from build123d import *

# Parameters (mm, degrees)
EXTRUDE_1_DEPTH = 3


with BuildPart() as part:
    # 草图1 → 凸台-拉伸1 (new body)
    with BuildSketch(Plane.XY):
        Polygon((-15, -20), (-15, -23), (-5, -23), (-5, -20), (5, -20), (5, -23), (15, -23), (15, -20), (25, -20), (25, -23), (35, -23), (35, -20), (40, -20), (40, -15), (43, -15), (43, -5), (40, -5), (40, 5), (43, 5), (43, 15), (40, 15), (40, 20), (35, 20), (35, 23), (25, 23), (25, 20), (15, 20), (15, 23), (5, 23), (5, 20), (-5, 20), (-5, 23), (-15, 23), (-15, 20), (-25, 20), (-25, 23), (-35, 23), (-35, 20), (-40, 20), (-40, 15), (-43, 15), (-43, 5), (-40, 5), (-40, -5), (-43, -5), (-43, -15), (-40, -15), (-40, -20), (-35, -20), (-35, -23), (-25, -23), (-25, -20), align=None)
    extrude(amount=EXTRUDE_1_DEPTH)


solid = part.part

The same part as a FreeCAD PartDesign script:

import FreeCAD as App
import Part
import Sketcher

V = App.Vector
Q = App.Units.Quantity

doc = App.newDocument("Part")
body = doc.addObject("PartDesign::Body", "Body")

sketch1 = body.newObject("Sketcher::SketchObject", "Sketch")
sketch1.AttachmentSupport = (doc.getObject("XY_Plane"), [""])
sketch1.MapMode = "FlatFace"
sketch1.addGeometry(Part.LineSegment(V(-15, -20, 0), V(-15, -23, 0)), False)
sketch1.addGeometry(Part.LineSegment(V(-15, -23, 0), V(-5, -23, 0)), False)
sketch1.addGeometry(Part.LineSegment(V(-5, -23, 0), V(-5, -20, 0)), False)
sketch1.addGeometry(Part.LineSegment(V(-5, -20, 0), V(5, -20, 0)), False)
sketch1.addGeometry(Part.LineSegment(V(5, -20, 0), V(5, -23, 0)), False)
sketch1.addGeometry(Part.LineSegment(V(5, -23, 0), V(15, -23, 0)), False)
sketch1.addGeometry(Part.LineSegment(V(15, -23, 0), V(15, -20, 0)), False)
sketch1.addGeometry(Part.LineSegment(V(15, -20, 0), V(25, -20, 0)), False)
sketch1.addGeometry(Part.LineSegment(V(25, -20, 0), V(25, -23, 0)), False)
sketch1.addGeometry(Part.LineSegment(V(25, -23, 0), V(35, -23, 0)), False)
sketch1.addGeometry(Part.LineSegment(V(35, -23, 0), V(35, -20, 0)), False)
sketch1.addGeometry(Part.LineSegment(V(35, -20, 0), V(40, -20, 0)), False)
sketch1.addGeometry(Part.LineSegment(V(40, -20, 0), V(40, -15, 0)), False)
sketch1.addGeometry(Part.LineSegment(V(40, -15, 0), V(43, -15, 0)), False)
sketch1.addGeometry(Part.LineSegment(V(43, -15, 0), V(43, -5, 0)), False)
sketch1.addGeometry(Part.LineSegment(V(43, -5, 0), V(40, -5, 0)), False)
sketch1.addGeometry(Part.LineSegment(V(40, -5, 0), V(40, 5, 0)), False)
sketch1.addGeometry(Part.LineSegment(V(40, 5, 0), V(43, 5, 0)), False)
sketch1.addGeometry(Part.LineSegment(V(43, 5, 0), V(43, 15, 0)), False)
sketch1.addGeometry(Part.LineSegment(V(43, 15, 0), V(40, 15, 0)), False)
sketch1.addGeometry(Part.LineSegment(V(40, 15, 0), V(40, 20, 0)), False)
sketch1.addGeometry(Part.LineSegment(V(40, 20, 0), V(35, 20, 0)), False)
sketch1.addGeometry(Part.LineSegment(V(35, 20, 0), V(35, 23, 0)), False)
sketch1.addGeometry(Part.LineSegment(V(35, 23, 0), V(25, 23, 0)), False)
sketch1.addGeometry(Part.LineSegment(V(25, 23, 0), V(25, 20, 0)), False)
sketch1.addGeometry(Part.LineSegment(V(25, 20, 0), V(15, 20, 0)), False)
sketch1.addGeometry(Part.LineSegment(V(15, 20, 0), V(15, 23, 0)), False)
sketch1.addGeometry(Part.LineSegment(V(15, 23, 0), V(5, 23, 0)), False)
sketch1.addGeometry(Part.LineSegment(V(5, 23, 0), V(5, 20, 0)), False)
sketch1.addGeometry(Part.LineSegment(V(5, 20, 0), V(-5, 20, 0)), False)
sketch1.addGeometry(Part.LineSegment(V(-5, 20, 0), V(-5, 23, 0)), False)
sketch1.addGeometry(Part.LineSegment(V(-5, 23, 0), V(-15, 23, 0)), False)
sketch1.addGeometry(Part.LineSegment(V(-15, 23, 0), V(-15, 20, 0)), False)
sketch1.addGeometry(Part.LineSegment(V(-15, 20, 0), V(-25, 20, 0)), False)
sketch1.addGeometry(Part.LineSegment(V(-25, 20, 0), V(-25, 23, 0)), False)
sketch1.addGeometry(Part.LineSegment(V(-25, 23, 0), V(-35, 23, 0)), False)
sketch1.addGeometry(Part.LineSegment(V(-35, 23, 0), V(-35, 20, 0)), False)
sketch1.addGeometry(Part.LineSegment(V(-35, 20, 0), V(-40, 20, 0)), False)
sketch1.addGeometry(Part.LineSegment(V(-40, 20, 0), V(-40, 15, 0)), False)
sketch1.addGeometry(Part.LineSegment(V(-40, 15, 0), V(-43, 15, 0)), False)
sketch1.addGeometry(Part.LineSegment(V(-43, 15, 0), V(-43, 5, 0)), False)
sketch1.addGeometry(Part.LineSegment(V(-43, 5, 0), V(-40, 5, 0)), False)
sketch1.addGeometry(Part.LineSegment(V(-40, 5, 0), V(-40, -5, 0)), False)
sketch1.addGeometry(Part.LineSegment(V(-40, -5, 0), V(-43, -5, 0)), False)
sketch1.addGeometry(Part.LineSegment(V(-43, -5, 0), V(-43, -15, 0)), False)
sketch1.addGeometry(Part.LineSegment(V(-43, -15, 0), V(-40, -15, 0)), False)
sketch1.addGeometry(Part.LineSegment(V(-40, -15, 0), V(-40, -20, 0)), False)
sketch1.addGeometry(Part.LineSegment(V(-40, -20, 0), V(-35, -20, 0)), False)
sketch1.addGeometry(Part.LineSegment(V(-35, -20, 0), V(-35, -23, 0)), False)
sketch1.addGeometry(Part.LineSegment(V(-35, -23, 0), V(-25, -23, 0)), False)
sketch1.addGeometry(Part.LineSegment(V(-25, -23, 0), V(-25, -20, 0)), False)
sketch1.addGeometry(Part.LineSegment(V(-25, -20, 0), V(-15, -20, 0)), False)
sketch1.addConstraint(Sketcher.Constraint("Coincident", 0, 2, 1, 1))
sketch1.addConstraint(Sketcher.Constraint("Coincident", 1, 2, 2, 1))
sketch1.addConstraint(Sketcher.Constraint("Coincident", 2, 2, 3, 1))
sketch1.addConstraint(Sketcher.Constraint("Coincident", 3, 2, 4, 1))
sketch1.addConstraint(Sketcher.Constraint("Coincident", 4, 2, 5, 1))
sketch1.addConstraint(Sketcher.Constraint("Coincident", 5, 2, 6, 1))
sketch1.addConstraint(Sketcher.Constraint("Coincident", 6, 2, 7, 1))
sketch1.addConstraint(Sketcher.Constraint("Coincident", 7, 2, 8, 1))
sketch1.addConstraint(Sketcher.Constraint("Coincident", 8, 2, 9, 1))
sketch1.addConstraint(Sketcher.Constraint("Coincident", 9, 2, 10, 1))
sketch1.addConstraint(Sketcher.Constraint("Coincident", 10, 2, 11, 1))
sketch1.addConstraint(Sketcher.Constraint("Coincident", 11, 2, 12, 1))
sketch1.addConstraint(Sketcher.Constraint("Coincident", 12, 2, 13, 1))
sketch1.addConstraint(Sketcher.Constraint("Coincident", 13, 2, 14, 1))
sketch1.addConstraint(Sketcher.Constraint("Coincident", 14, 2, 15, 1))
sketch1.addConstraint(Sketcher.Constraint("Coincident", 15, 2, 16, 1))
sketch1.addConstraint(Sketcher.Constraint("Coincident", 16, 2, 17, 1))
sketch1.addConstraint(Sketcher.Constraint("Coincident", 17, 2, 18, 1))
sketch1.addConstraint(Sketcher.Constraint("Coincident", 18, 2, 19, 1))
sketch1.addConstraint(Sketcher.Constraint("Coincident", 19, 2, 20, 1))
sketch1.addConstraint(Sketcher.Constraint("Coincident", 20, 2, 21, 1))
sketch1.addConstraint(Sketcher.Constraint("Coincident", 21, 2, 22, 1))
sketch1.addConstraint(Sketcher.Constraint("Coincident", 22, 2, 23, 1))
sketch1.addConstraint(Sketcher.Constraint("Coincident", 23, 2, 24, 1))
sketch1.addConstraint(Sketcher.Constraint("Coincident", 24, 2, 25, 1))
sketch1.addConstraint(Sketcher.Constraint("Coincident", 25, 2, 26, 1))
sketch1.addConstraint(Sketcher.Constraint("Coincident", 26, 2, 27, 1))
sketch1.addConstraint(Sketcher.Constraint("Coincident", 27, 2, 28, 1))
sketch1.addConstraint(Sketcher.Constraint("Coincident", 28, 2, 29, 1))
sketch1.addConstraint(Sketcher.Constraint("Coincident", 29, 2, 30, 1))
sketch1.addConstraint(Sketcher.Constraint("Coincident", 30, 2, 31, 1))
sketch1.addConstraint(Sketcher.Constraint("Coincident", 31, 2, 32, 1))
sketch1.addConstraint(Sketcher.Constraint("Coincident", 32, 2, 33, 1))
sketch1.addConstraint(Sketcher.Constraint("Coincident", 33, 2, 34, 1))
sketch1.addConstraint(Sketcher.Constraint("Coincident", 34, 2, 35, 1))
sketch1.addConstraint(Sketcher.Constraint("Coincident", 35, 2, 36, 1))
sketch1.addConstraint(Sketcher.Constraint("Coincident", 36, 2, 37, 1))
sketch1.addConstraint(Sketcher.Constraint("Coincident", 37, 2, 38, 1))
sketch1.addConstraint(Sketcher.Constraint("Coincident", 38, 2, 39, 1))
sketch1.addConstraint(Sketcher.Constraint("Coincident", 39, 2, 40, 1))
sketch1.addConstraint(Sketcher.Constraint("Coincident", 40, 2, 41, 1))
sketch1.addConstraint(Sketcher.Constraint("Coincident", 41, 2, 42, 1))
sketch1.addConstraint(Sketcher.Constraint("Coincident", 42, 2, 43, 1))
sketch1.addConstraint(Sketcher.Constraint("Coincident", 43, 2, 44, 1))
sketch1.addConstraint(Sketcher.Constraint("Coincident", 44, 2, 45, 1))
sketch1.addConstraint(Sketcher.Constraint("Coincident", 45, 2, 46, 1))
sketch1.addConstraint(Sketcher.Constraint("Coincident", 46, 2, 47, 1))
sketch1.addConstraint(Sketcher.Constraint("Coincident", 47, 2, 48, 1))
sketch1.addConstraint(Sketcher.Constraint("Coincident", 48, 2, 49, 1))
sketch1.addConstraint(Sketcher.Constraint("Coincident", 49, 2, 50, 1))
sketch1.addConstraint(Sketcher.Constraint("Coincident", 50, 2, 51, 1))
sketch1.addConstraint(Sketcher.Constraint("Coincident", 51, 2, 0, 1))
sketch1.addConstraint(Sketcher.Constraint("Vertical", 0))
sketch1.addConstraint(Sketcher.Constraint("Horizontal", 1))
sketch1.addConstraint(Sketcher.Constraint("Vertical", 2))
sketch1.addConstraint(Sketcher.Constraint("Horizontal", 3))
sketch1.addConstraint(Sketcher.Constraint("Vertical", 4))
sketch1.addConstraint(Sketcher.Constraint("Horizontal", 5))
sketch1.addConstraint(Sketcher.Constraint("Vertical", 6))
sketch1.addConstraint(Sketcher.Constraint("Horizontal", 7))
sketch1.addConstraint(Sketcher.Constraint("Vertical", 8))
sketch1.addConstraint(Sketcher.Constraint("Horizontal", 9))
sketch1.addConstraint(Sketcher.Constraint("Vertical", 10))
sketch1.addConstraint(Sketcher.Constraint("Horizontal", 11))
sketch1.addConstraint(Sketcher.Constraint("Vertical", 12))
sketch1.addConstraint(Sketcher.Constraint("Horizontal", 13))
sketch1.addConstraint(Sketcher.Constraint("Vertical", 14))
sketch1.addConstraint(Sketcher.Constraint("Horizontal", 15))
sketch1.addConstraint(Sketcher.Constraint("Vertical", 16))
sketch1.addConstraint(Sketcher.Constraint("Horizontal", 17))
sketch1.addConstraint(Sketcher.Constraint("Vertical", 18))
sketch1.addConstraint(Sketcher.Constraint("Horizontal", 19))
sketch1.addConstraint(Sketcher.Constraint("Vertical", 20))
sketch1.addConstraint(Sketcher.Constraint("Horizontal", 21))
sketch1.addConstraint(Sketcher.Constraint("Vertical", 22))
sketch1.addConstraint(Sketcher.Constraint("Horizontal", 23))
sketch1.addConstraint(Sketcher.Constraint("Vertical", 24))
sketch1.addConstraint(Sketcher.Constraint("Horizontal", 25))
sketch1.addConstraint(Sketcher.Constraint("Vertical", 26))
sketch1.addConstraint(Sketcher.Constraint("Horizontal", 27))
sketch1.addConstraint(Sketcher.Constraint("Vertical", 28))
sketch1.addConstraint(Sketcher.Constraint("Horizontal", 29))
sketch1.addConstraint(Sketcher.Constraint("Vertical", 30))
sketch1.addConstraint(Sketcher.Constraint("Horizontal", 31))
sketch1.addConstraint(Sketcher.Constraint("Vertical", 32))
sketch1.addConstraint(Sketcher.Constraint("Horizontal", 33))
sketch1.addConstraint(Sketcher.Constraint("Vertical", 34))
sketch1.addConstraint(Sketcher.Constraint("Horizontal", 35))
sketch1.addConstraint(Sketcher.Constraint("Vertical", 36))
sketch1.addConstraint(Sketcher.Constraint("Horizontal", 37))
sketch1.addConstraint(Sketcher.Constraint("Vertical", 38))
sketch1.addConstraint(Sketcher.Constraint("Horizontal", 39))
sketch1.addConstraint(Sketcher.Constraint("Vertical", 40))
sketch1.addConstraint(Sketcher.Constraint("Horizontal", 41))
sketch1.addConstraint(Sketcher.Constraint("Vertical", 42))
sketch1.addConstraint(Sketcher.Constraint("Horizontal", 43))
sketch1.addConstraint(Sketcher.Constraint("Vertical", 44))
sketch1.addConstraint(Sketcher.Constraint("Horizontal", 45))
sketch1.addConstraint(Sketcher.Constraint("Vertical", 46))
sketch1.addConstraint(Sketcher.Constraint("Horizontal", 47))
sketch1.addConstraint(Sketcher.Constraint("Vertical", 48))
sketch1.addConstraint(Sketcher.Constraint("Horizontal", 49))
sketch1.addConstraint(Sketcher.Constraint("Vertical", 50))
sketch1.addConstraint(Sketcher.Constraint("Horizontal", 51))
sketch1.addConstraint(Sketcher.Constraint("Symmetric", 0, 2, 26, 2, -1, 1))
sketch1.addConstraint(Sketcher.Constraint("Symmetric", 2, 2, 28, 2, -1, 1))
sketch1.addConstraint(Sketcher.Constraint("Symmetric", 4, 2, 30, 2, -1, 1))
sketch1.addConstraint(Sketcher.Constraint("Symmetric", 6, 2, 32, 2, -1, 1))
sketch1.addConstraint(Sketcher.Constraint("Symmetric", 8, 2, 34, 2, -1, 1))
sketch1.addConstraint(Sketcher.Constraint("Symmetric", 10, 2, 36, 2, -1, 1))
sketch1.addConstraint(Sketcher.Constraint("Symmetric", 12, 2, 38, 2, -1, 1))
sketch1.addConstraint(Sketcher.Constraint("Symmetric", 14, 2, 40, 2, -1, 1))
sketch1.addConstraint(Sketcher.Constraint("Symmetric", 16, 2, 42, 2, -1, 1))
sketch1.addConstraint(Sketcher.Constraint("Symmetric", 18, 2, 44, 2, -1, 1))
sketch1.addConstraint(Sketcher.Constraint("Symmetric", 20, 2, 46, 2, -1, 1))
sketch1.addConstraint(Sketcher.Constraint("Symmetric", 22, 2, 48, 2, -1, 1))
sketch1.addConstraint(Sketcher.Constraint("Symmetric", 24, 2, 50, 2, -1, 1))
sketch1.addConstraint(Sketcher.Constraint("Symmetric", 1, 2, 4, 2, -2))
sketch1.addConstraint(Sketcher.Constraint("Symmetric", 25, 2, 32, 2, -2))
sketch1.addConstraint(Sketcher.Constraint("Symmetric", 23, 2, 34, 2, -2))
sketch1.addConstraint(Sketcher.Constraint("Symmetric", 21, 2, 36, 2, -2))
sketch1.addConstraint(Sketcher.Constraint("Symmetric", 19, 2, 38, 2, -2))
sketch1.addConstraint(Sketcher.Constraint("Symmetric", 17, 2, 40, 2, -2))
sketch1.addConstraint(Sketcher.Constraint("Horizontal", 3, 2, 6, 2))
sketch1.addConstraint(Sketcher.Constraint("Horizontal", 5, 2, 8, 2))
sketch1.addConstraint(Sketcher.Constraint("Horizontal", 7, 2, 10, 2))
sketch1.addConstraint(Sketcher.Constraint("Vertical", 12, 2, 15, 2))
sketch1.addConstraint(Sketcher.Constraint("Equal", 1, 3))
sketch1.addConstraint(Sketcher.Constraint("Equal", 5, 7))
sketch1.addConstraint(Sketcher.Constraint("Equal", 7, 9))
sketch1.addConstraint(Sketcher.Constraint("Equal", 45, 0))
sketch1.addConstraint(Sketcher.Constraint("Equal", 47, 12))
sketch1.addConstraint(Sketcher.Constraint("Equal", 51, 14))
sketch1.addConstraint(Sketcher.Constraint("Equal", 14, 16))
sketch1.addConstraint(Sketcher.Constraint("DistanceX", 1, 1, 1, 2, Q("10 mm")))
sketch1.addConstraint(Sketcher.Constraint("DistanceX", 11, 1, 11, 2, Q("5 mm")))
sketch1.addConstraint(Sketcher.Constraint("DistanceX", 13, 1, 13, 2, Q("3 mm")))
pad1 = body.newObject("PartDesign::Pad", "Pad")
pad1.Profile = sketch1
pad1.Length = 3

doc.recompute()
